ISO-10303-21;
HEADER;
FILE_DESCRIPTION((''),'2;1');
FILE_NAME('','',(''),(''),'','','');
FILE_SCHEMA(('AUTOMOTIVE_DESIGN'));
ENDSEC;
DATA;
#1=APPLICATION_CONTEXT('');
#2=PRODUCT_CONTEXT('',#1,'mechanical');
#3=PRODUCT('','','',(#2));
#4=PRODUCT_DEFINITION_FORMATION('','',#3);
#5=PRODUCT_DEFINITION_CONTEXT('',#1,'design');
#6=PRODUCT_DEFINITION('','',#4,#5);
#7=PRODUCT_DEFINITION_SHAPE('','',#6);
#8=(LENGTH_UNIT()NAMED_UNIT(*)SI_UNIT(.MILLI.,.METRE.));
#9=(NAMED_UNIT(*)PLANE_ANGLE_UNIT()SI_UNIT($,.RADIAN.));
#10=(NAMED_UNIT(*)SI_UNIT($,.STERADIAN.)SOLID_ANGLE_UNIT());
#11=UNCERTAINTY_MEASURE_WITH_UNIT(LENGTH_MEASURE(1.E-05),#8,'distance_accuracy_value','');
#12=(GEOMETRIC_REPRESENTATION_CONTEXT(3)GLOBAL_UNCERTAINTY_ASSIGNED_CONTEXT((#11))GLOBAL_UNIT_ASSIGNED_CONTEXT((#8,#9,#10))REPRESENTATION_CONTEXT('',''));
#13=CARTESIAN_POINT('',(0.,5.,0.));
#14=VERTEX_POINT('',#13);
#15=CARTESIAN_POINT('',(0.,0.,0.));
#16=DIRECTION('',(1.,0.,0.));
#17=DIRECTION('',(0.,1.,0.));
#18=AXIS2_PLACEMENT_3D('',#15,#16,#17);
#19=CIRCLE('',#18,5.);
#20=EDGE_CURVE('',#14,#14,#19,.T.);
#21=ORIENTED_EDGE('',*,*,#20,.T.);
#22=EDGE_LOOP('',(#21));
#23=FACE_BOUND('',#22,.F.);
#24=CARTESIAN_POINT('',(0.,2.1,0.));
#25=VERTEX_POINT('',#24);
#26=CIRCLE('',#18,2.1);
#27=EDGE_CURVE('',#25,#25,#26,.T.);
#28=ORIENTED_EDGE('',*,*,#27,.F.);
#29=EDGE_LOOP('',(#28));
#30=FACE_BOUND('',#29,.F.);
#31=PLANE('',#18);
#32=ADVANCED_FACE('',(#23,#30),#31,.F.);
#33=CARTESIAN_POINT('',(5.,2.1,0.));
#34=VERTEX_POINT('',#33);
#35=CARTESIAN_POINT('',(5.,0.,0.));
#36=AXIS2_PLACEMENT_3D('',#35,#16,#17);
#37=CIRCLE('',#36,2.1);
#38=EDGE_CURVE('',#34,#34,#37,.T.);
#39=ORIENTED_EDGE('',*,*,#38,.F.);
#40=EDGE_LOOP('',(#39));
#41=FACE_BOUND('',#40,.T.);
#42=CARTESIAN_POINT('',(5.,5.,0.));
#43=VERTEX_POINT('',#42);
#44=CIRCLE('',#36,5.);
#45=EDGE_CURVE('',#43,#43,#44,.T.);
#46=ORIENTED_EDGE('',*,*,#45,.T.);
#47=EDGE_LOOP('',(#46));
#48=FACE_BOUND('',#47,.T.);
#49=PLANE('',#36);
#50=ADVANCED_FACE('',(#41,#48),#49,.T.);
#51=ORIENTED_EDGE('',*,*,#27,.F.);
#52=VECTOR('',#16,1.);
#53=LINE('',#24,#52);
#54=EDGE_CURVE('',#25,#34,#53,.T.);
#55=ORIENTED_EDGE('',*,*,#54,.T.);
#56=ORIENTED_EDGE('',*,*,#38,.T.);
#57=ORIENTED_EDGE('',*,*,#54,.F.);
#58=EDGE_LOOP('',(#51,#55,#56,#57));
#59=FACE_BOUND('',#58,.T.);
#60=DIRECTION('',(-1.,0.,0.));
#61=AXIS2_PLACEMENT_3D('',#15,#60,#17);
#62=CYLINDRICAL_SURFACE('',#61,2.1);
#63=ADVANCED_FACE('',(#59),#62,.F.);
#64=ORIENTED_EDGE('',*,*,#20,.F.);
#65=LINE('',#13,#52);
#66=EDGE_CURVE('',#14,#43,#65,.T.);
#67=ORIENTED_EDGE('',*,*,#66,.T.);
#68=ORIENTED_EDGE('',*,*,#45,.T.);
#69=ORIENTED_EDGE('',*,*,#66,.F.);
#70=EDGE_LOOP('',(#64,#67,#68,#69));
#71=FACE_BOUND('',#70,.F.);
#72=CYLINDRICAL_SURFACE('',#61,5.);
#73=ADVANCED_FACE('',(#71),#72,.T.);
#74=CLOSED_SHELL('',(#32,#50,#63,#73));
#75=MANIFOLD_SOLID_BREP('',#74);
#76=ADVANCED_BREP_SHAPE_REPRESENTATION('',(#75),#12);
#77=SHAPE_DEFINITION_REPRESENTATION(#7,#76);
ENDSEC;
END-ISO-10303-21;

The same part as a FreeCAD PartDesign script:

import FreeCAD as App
import Part
import Sketcher

V = App.Vector

doc = App.newDocument("Part")
body = doc.addObject("PartDesign::Body", "Body")

# Sketch on YZ plane
sketch1 = doc.addObject("Sketcher::SketchObject", "Sketch")
body.addObject(sketch1)
sketch1.AttachmentSupport = (doc.YZ_Plane, [""])
sketch1.MapMode = "FlatFace"
sketch1.addGeometry([
    Part.Circle(V(0, 0, 0), V(0, 0, 1), 5),
    Part.Circle(V(0, 0, 0), V(0, 0, 1), 2.1),
], False)
sketch1.addConstraint([
    Sketcher.Constraint("Coincident", 0, 3, -1, 1),
    Sketcher.Constraint("Coincident", 1, 3, -1, 1),
    Sketcher.Constraint("Diameter", 0, 10.0),
    Sketcher.Constraint("Diameter", 1, 4.2),
])
pad1 = doc.addObject("PartDesign::Pad", "Pad")
body.addObject(pad1)
pad1.Profile = sketch1
pad1.Length = 5

doc.recompute()
